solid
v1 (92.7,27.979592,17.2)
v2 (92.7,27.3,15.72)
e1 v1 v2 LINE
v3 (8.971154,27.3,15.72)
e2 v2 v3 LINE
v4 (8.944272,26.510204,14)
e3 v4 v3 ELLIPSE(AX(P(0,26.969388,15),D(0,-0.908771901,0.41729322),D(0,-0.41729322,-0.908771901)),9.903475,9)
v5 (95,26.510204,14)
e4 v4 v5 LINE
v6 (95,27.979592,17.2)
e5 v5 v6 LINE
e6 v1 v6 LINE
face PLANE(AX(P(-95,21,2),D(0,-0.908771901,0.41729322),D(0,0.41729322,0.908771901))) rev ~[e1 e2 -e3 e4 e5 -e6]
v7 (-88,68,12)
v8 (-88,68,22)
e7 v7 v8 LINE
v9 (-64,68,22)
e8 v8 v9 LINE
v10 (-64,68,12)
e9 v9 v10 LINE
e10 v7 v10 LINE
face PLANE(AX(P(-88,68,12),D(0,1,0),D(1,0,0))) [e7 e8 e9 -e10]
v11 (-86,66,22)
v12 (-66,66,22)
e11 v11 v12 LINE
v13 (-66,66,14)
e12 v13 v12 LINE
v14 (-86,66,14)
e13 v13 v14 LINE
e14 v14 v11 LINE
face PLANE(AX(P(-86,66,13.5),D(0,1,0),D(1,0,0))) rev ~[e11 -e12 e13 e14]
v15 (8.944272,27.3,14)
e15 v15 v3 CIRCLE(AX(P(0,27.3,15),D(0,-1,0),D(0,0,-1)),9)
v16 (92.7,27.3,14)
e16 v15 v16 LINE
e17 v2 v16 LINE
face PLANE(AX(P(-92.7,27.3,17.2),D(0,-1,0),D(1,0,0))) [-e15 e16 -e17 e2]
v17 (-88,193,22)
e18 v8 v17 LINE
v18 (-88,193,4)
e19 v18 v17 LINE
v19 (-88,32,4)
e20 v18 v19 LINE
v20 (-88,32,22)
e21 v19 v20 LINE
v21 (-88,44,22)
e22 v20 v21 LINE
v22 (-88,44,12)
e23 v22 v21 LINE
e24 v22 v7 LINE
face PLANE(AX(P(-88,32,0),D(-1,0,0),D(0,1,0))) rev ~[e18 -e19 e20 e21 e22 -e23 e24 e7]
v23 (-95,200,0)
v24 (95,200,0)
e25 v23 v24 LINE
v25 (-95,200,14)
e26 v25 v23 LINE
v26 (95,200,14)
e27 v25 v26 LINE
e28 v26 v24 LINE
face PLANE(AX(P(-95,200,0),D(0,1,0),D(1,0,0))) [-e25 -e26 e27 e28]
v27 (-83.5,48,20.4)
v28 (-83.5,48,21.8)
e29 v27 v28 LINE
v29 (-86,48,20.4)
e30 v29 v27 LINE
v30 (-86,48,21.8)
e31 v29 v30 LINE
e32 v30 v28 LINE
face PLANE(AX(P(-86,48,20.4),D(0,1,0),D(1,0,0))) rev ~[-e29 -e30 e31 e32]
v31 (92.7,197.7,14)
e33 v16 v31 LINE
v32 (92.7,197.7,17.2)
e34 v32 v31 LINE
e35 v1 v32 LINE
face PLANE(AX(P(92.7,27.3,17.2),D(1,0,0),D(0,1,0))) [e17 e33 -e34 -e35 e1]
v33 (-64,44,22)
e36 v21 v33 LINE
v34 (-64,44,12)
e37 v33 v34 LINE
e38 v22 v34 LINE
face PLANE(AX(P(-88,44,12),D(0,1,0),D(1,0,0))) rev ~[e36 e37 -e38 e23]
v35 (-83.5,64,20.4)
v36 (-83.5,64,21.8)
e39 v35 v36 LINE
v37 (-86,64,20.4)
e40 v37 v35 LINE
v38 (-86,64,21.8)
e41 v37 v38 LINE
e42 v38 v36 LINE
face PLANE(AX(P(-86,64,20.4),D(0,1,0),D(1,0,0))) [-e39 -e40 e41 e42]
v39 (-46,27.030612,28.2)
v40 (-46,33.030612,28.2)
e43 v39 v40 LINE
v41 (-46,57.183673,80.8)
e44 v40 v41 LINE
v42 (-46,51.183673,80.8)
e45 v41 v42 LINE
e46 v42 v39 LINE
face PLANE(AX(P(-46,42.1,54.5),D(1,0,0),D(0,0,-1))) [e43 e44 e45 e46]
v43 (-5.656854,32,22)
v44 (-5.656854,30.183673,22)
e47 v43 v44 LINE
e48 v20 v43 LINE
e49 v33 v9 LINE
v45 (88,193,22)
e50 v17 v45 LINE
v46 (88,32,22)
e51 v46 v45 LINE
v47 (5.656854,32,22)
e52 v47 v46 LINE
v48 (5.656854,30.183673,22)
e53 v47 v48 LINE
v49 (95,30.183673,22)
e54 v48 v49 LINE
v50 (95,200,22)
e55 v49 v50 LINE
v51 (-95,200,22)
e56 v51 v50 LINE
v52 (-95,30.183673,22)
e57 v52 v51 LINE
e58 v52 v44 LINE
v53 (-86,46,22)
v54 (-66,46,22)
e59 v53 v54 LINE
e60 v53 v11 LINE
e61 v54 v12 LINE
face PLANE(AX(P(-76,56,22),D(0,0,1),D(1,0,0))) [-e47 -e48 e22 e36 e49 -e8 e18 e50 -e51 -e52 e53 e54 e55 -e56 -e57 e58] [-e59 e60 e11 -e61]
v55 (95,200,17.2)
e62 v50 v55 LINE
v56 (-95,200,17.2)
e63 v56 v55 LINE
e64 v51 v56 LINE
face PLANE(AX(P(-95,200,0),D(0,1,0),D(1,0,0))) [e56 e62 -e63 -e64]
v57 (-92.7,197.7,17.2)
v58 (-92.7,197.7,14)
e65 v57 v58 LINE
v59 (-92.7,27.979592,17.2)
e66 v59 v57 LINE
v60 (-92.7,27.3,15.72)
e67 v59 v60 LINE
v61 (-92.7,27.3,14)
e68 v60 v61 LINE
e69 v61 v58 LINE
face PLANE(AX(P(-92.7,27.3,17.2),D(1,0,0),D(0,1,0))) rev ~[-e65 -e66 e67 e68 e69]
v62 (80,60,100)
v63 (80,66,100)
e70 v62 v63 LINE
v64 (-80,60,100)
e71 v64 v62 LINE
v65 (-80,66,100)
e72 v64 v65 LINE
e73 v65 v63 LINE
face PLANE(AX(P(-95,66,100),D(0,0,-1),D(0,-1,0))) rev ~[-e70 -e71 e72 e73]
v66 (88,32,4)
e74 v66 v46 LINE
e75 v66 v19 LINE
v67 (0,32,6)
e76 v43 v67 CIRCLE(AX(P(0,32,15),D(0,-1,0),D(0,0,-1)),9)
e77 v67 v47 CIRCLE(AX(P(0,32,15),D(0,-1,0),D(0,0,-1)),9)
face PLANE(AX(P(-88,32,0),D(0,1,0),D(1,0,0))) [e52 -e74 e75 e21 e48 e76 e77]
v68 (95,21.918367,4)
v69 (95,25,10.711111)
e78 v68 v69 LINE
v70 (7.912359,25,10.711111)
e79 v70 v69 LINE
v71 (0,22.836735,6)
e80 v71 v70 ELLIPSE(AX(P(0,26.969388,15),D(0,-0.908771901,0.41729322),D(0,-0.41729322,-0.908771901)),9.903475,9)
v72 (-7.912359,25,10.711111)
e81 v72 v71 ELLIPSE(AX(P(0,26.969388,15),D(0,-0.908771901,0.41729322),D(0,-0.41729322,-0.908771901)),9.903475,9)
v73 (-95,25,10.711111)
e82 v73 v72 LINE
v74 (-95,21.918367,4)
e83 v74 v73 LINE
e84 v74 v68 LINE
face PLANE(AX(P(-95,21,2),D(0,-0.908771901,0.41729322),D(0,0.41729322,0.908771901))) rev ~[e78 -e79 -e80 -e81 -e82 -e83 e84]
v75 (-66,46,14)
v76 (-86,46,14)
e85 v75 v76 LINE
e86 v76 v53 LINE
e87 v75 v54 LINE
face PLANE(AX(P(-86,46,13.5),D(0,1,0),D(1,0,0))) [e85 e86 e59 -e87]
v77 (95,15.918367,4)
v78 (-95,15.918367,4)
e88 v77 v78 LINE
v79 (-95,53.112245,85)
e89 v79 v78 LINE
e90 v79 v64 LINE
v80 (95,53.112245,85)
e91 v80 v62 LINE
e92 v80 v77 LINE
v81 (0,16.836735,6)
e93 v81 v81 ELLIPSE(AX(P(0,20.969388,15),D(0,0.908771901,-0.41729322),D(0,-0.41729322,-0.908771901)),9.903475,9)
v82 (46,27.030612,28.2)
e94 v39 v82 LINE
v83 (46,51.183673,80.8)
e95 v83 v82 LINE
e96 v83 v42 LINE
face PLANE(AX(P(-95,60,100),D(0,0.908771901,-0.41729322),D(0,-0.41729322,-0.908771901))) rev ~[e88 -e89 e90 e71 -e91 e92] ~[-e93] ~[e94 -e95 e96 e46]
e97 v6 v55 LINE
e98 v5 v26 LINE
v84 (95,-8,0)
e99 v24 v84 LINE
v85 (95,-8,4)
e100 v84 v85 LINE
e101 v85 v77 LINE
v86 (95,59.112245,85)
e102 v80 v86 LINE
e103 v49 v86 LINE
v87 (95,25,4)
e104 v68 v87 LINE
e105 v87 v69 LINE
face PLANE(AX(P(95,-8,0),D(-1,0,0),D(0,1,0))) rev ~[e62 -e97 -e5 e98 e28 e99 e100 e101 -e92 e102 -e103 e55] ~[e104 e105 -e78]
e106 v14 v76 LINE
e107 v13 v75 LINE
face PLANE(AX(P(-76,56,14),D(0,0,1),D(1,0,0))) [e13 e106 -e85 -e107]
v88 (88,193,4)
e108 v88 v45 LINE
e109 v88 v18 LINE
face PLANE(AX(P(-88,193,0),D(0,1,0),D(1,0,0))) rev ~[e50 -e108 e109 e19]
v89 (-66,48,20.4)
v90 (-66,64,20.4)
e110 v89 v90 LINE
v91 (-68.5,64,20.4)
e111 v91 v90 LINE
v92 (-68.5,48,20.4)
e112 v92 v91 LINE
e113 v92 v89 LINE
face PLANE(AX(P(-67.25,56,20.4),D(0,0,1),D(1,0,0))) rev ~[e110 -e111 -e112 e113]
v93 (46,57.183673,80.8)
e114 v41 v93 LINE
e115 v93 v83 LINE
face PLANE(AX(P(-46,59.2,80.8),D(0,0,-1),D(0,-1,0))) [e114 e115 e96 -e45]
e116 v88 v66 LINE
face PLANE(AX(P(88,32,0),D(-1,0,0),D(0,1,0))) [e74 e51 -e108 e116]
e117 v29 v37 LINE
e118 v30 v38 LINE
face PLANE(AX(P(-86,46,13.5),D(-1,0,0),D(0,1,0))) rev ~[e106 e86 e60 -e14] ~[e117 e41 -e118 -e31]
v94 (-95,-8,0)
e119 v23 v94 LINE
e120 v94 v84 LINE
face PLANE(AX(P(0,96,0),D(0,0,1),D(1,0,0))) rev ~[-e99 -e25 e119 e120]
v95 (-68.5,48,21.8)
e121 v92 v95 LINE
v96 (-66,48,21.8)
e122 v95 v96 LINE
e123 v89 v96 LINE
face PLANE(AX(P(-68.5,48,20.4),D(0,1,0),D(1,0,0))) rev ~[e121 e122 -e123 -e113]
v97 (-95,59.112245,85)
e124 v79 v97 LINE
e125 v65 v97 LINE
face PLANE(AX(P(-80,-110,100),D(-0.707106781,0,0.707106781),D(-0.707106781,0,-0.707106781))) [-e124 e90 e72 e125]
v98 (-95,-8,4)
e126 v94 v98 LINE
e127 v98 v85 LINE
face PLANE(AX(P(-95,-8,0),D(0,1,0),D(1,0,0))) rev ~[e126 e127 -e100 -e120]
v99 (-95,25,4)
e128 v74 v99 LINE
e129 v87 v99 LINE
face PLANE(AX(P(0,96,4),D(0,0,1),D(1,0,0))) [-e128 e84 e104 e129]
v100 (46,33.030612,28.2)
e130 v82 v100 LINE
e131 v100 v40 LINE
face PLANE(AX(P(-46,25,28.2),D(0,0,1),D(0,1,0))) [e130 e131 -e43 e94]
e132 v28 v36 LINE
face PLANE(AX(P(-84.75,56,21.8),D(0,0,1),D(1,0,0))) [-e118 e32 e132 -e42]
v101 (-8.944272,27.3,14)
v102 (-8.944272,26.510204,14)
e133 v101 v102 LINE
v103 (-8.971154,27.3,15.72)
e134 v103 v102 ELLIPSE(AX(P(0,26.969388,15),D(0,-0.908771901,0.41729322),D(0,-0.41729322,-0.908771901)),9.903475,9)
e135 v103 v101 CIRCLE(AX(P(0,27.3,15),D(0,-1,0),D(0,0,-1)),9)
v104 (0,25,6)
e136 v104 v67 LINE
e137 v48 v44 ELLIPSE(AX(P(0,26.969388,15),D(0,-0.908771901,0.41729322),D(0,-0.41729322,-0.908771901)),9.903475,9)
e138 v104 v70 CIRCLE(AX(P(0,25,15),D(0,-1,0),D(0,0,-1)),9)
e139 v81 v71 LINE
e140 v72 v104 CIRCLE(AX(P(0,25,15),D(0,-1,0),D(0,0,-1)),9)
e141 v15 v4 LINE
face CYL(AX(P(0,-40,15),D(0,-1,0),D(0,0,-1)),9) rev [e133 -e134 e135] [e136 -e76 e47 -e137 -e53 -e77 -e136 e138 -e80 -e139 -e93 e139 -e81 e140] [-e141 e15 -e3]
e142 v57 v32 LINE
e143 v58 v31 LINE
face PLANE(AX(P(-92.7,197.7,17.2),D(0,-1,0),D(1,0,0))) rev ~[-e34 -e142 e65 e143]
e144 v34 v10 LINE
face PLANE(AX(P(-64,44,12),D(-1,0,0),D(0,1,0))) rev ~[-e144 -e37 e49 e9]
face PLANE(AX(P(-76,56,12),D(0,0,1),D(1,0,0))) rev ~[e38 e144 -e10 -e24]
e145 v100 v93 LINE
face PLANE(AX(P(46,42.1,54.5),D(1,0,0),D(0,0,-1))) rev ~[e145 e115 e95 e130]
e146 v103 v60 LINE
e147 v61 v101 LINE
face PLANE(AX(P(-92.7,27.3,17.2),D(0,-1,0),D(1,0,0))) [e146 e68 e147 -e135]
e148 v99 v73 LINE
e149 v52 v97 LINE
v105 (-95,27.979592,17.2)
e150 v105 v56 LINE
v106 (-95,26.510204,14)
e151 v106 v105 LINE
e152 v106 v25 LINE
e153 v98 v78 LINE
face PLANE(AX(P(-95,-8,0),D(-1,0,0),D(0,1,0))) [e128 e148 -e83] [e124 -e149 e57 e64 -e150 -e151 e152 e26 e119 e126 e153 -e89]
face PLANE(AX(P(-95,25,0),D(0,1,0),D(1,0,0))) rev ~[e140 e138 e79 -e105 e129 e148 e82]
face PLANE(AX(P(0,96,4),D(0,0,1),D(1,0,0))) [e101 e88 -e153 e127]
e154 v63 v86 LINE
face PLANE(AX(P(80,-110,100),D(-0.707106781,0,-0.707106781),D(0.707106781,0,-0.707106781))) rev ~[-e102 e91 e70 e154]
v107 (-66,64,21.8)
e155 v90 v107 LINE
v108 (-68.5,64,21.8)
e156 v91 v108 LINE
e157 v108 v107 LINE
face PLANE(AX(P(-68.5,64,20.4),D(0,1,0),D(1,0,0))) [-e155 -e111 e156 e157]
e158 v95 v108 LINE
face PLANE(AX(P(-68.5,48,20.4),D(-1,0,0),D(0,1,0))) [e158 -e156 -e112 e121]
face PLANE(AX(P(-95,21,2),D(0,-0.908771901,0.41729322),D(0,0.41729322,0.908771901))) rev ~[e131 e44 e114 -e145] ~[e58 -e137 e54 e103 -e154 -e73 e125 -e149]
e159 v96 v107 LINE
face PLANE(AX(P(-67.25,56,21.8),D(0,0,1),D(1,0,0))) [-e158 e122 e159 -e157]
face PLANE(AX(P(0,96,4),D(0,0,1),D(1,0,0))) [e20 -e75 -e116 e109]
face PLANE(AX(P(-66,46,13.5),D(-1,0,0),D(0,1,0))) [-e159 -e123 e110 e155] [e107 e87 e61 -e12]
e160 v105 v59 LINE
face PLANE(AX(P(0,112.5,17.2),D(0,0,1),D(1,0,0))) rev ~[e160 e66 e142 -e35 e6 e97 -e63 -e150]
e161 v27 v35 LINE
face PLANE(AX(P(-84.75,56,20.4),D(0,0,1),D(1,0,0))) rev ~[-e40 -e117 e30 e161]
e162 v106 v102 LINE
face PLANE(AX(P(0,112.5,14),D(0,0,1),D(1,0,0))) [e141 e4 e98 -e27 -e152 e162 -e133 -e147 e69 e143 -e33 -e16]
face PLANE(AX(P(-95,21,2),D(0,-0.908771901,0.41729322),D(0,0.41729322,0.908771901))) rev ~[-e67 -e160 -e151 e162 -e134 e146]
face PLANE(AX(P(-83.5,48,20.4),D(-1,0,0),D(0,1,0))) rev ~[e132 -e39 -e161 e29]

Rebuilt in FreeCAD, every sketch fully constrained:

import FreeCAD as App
import Part
import Sketcher

V = App.Vector


def add_polygon(sketch, points):
    """Adds a closed chain of lines whose ends are joined by coincident constraints."""
    first, n = sketch.GeometryCount, len(points)
    for a, b in zip(points, points[1:] + points[:1]):
        sketch.addGeometry(Part.LineSegment(App.Vector(*a, 0), App.Vector(*b, 0)), False)
    for i in range(n):
        sketch.addConstraint(Sketcher.Constraint("Coincident", first + i, 2, first + (i + 1) % n, 1))

doc = App.newDocument("Part")
body = doc.addObject("PartDesign::Body", "Body")

sketch1 = body.newObject("Sketcher::SketchObject", "Sketch")
sketch1.AttachmentSupport = (doc.getObject("XY_Plane"), [""])
sketch1.MapMode = "FlatFace"
add_polygon(sketch1, [(-95, 200), (-95, -8), (95, -8), (95, 200)])
sketch1.addConstraint(Sketcher.Constraint("Vertical", 0))
sketch1.addConstraint(Sketcher.Constraint("Horizontal", 1))
sketch1.addConstraint(Sketcher.Constraint("Vertical", 2))
sketch1.addConstraint(Sketcher.Constraint("Horizontal", 3))
sketch1.addConstraint(Sketcher.Constraint("DistanceX", 1, 1, 1, 2, 190.0))
sketch1.addConstraint(Sketcher.Constraint("DistanceY", 0, 2, 0, 1, 208.0))
sketch1.addConstraint(Sketcher.Constraint("DistanceX", 0, 2, -1, 1, 95.0))
sketch1.addConstraint(Sketcher.Constraint("DistanceY", 0, 2, -1, 1, 8.0))
pad1 = body.newObject("PartDesign::Pad", "Pad")
pad1.Profile = sketch1
pad1.Length = 4

sketch2 = body.newObject("Sketcher::SketchObject", "Sketch001")
sketch2.AttachmentSupport = (doc.getObject("XY_Plane"), [""])
sketch2.MapMode = "FlatFace"
add_polygon(sketch2, [(-95, 200), (-95, 25), (95, 25), (95, 200)])
add_polygon(sketch2, [(88, 32), (-88, 32), (-88, 193), (88, 193)])
sketch2.addConstraint(Sketcher.Constraint("Vertical", 0))
sketch2.addConstraint(Sketcher.Constraint("Horizontal", 1))
sketch2.addConstraint(Sketcher.Constraint("Vertical", 2))
sketch2.addConstraint(Sketcher.Constraint("Horizontal", 3))
sketch2.addConstraint(Sketcher.Constraint("Horizontal", 4))
sketch2.addConstraint(Sketcher.Constraint("Vertical", 5))
sketch2.addConstraint(Sketcher.Constraint("Horizontal", 6))
sketch2.addConstraint(Sketcher.Constraint("Vertical", 7))
sketch2.addConstraint(Sketcher.Constraint("DistanceX", 1, 1, 1, 2, 190.0))
sketch2.addConstraint(Sketcher.Constraint("DistanceX", 4, 2, 4, 1, 176.0))
sketch2.addConstraint(Sketcher.Constraint("DistanceY", 0, 2, 0, 1, 175.0))
sketch2.addConstraint(Sketcher.Constraint("DistanceY", 5, 1, 5, 2, 161.0))
sketch2.addConstraint(Sketcher.Constraint("DistanceX", 0, 2, -1, 1, 95.0))
sketch2.addConstraint(Sketcher.Constraint("DistanceY", -1, 1, 0, 2, 25.0))
sketch2.addConstraint(Sketcher.Constraint("DistanceX", 4, 2, -1, 1, 88.0))
sketch2.addConstraint(Sketcher.Constraint("DistanceY", -1, 1, 4, 2, 32.0))
pad2 = body.newObject("PartDesign::Pad", "Pad001")
pad2.Profile = sketch2
pad2.Length = 22

sketch3 = body.newObject("Sketcher::SketchObject", "Sketch002")
sketch3.AttachmentSupport = (doc.getObject("XY_Plane"), [""])
sketch3.MapMode = "FlatFace"
sketch3.AttachmentOffset = App.Placement(V(0, 0, 17.2), App.Rotation())
add_polygon(sketch3, [(-96, 201), (-96, 24), (96, 24), (96, 201)])
add_polygon(sketch3, [(93, 27), (-93, 27), (-93, 198), (93, 198)])
sketch3.addConstraint(Sketcher.Constraint("Vertical", 0))
sketch3.addConstraint(Sketcher.Constraint("Horizontal", 1))
sketch3.addConstraint(Sketcher.Constraint("Vertical", 2))
sketch3.addConstraint(Sketcher.Constraint("Horizontal", 3))
sketch3.addConstraint(Sketcher.Constraint("Horizontal", 4))
sketch3.addConstraint(Sketcher.Constraint("Vertical", 5))
sketch3.addConstraint(Sketcher.Constraint("Horizontal", 6))
sketch3.addConstraint(Sketcher.Constraint("Vertical", 7))
sketch3.addConstraint(Sketcher.Constraint("DistanceX", 1, 1, 1, 2, 192.0))
sketch3.addConstraint(Sketcher.Constraint("DistanceY", 0, 2, 0, 1, 177.0))
sketch3.addConstraint(Sketcher.Constraint("DistanceX", 4, 2, 4, 1, 185.4))
sketch3.addConstraint(Sketcher.Constraint("DistanceY", 5, 1, 5, 2, 170.4))
sketch3.addConstraint(Sketcher.Constraint("DistanceX", 0, 2, -1, 1, 96.0))
sketch3.addConstraint(Sketcher.Constraint("DistanceY", -1, 1, 0, 2, 24.0))
sketch3.addConstraint(Sketcher.Constraint("DistanceX", 4, 2, -1, 1, 92.7))
sketch3.addConstraint(Sketcher.Constraint("DistanceY", -1, 1, 4, 2, 27.3))
pocket1 = body.newObject("PartDesign::Pocket", "Pocket")
pocket1.Profile = sketch3
pocket1.Length = 3.2

sketch4 = body.newObject("Sketcher::SketchObject", "Sketch003")
sketch4.AttachmentSupport = (doc.getObject("XY_Plane"), [""])
sketch4.MapMode = "FlatFace"
sketch4.AttachmentOffset = App.Placement(V(0, 0, 12), App.Rotation())
add_polygon(sketch4, [(-88, 68), (-88, 44), (-64, 44), (-64, 68)])
sketch4.addConstraint(Sketcher.Constraint("Vertical", 0))
sketch4.addConstraint(Sketcher.Constraint("Horizontal", 1))
sketch4.addConstraint(Sketcher.Constraint("Vertical", 2))
sketch4.addConstraint(Sketcher.Constraint("Horizontal", 3))
sketch4.addConstraint(Sketcher.Constraint("Equal", 3, 0))
sketch4.addConstraint(Sketcher.Constraint("DistanceX", 1, 1, 1, 2, 24.0))
sketch4.addConstraint(Sketcher.Constraint("DistanceX", 0, 2, -1, 1, 88.0))
sketch4.addConstraint(Sketcher.Constraint("DistanceY", -1, 1, 0, 2, 44.0))
pad3 = body.newObject("PartDesign::Pad", "Pad002")
pad3.Profile = sketch4
pad3.Length = 2

sketch5 = body.newObject("Sketcher::SketchObject", "Sketch004")
sketch5.AttachmentSupport = (doc.getObject("XY_Plane"), [""])
sketch5.MapMode = "FlatFace"
sketch5.AttachmentOffset = App.Placement(V(0, 0, 13.5), App.Rotation())
add_polygon(sketch5, [(-88, 68), (-88, 44), (-64, 44), (-64, 68)])
add_polygon(sketch5, [(-66, 46), (-86, 46), (-86, 66), (-66, 66)])
sketch5.addConstraint(Sketcher.Constraint("Vertical", 0))
sketch5.addConstraint(Sketcher.Constraint("Horizontal", 1))
sketch5.addConstraint(Sketcher.Constraint("Vertical", 2))
sketch5.addConstraint(Sketcher.Constraint("Horizontal", 3))
sketch5.addConstraint(Sketcher.Constraint("Horizontal", 4))
sketch5.addConstraint(Sketcher.Constraint("Vertical", 5))
sketch5.addConstraint(Sketcher.Constraint("Horizontal", 6))
sketch5.addConstraint(Sketcher.Constraint("Vertical", 7))
sketch5.addConstraint(Sketcher.Constraint("Equal", 3, 0))
sketch5.addConstraint(Sketcher.Constraint("Equal", 6, 5))
sketch5.addConstraint(Sketcher.Constraint("DistanceX", 1, 1, 1, 2, 24.0))
sketch5.addConstraint(Sketcher.Constraint("DistanceX", 4, 2, 4, 1, 20.0))
sketch5.addConstraint(Sketcher.Constraint("DistanceX", 0, 2, -1, 1, 88.0))
sketch5.addConstraint(Sketcher.Constraint("DistanceY", -1, 1, 0, 2, 44.0))
sketch5.addConstraint(Sketcher.Constraint("DistanceX", 4, 2, -1, 1, 86.0))
sketch5.addConstraint(Sketcher.Constraint("DistanceY", -1, 1, 4, 2, 46.0))
pad4 = body.newObject("PartDesign::Pad", "Pad003")
pad4.Profile = sketch5
pad4.Length = 8.5

sketch6 = body.newObject("Sketcher::SketchObject", "Sketch005")
sketch6.AttachmentSupport = (doc.getObject("XY_Plane"), [""])
sketch6.MapMode = "FlatFace"
sketch6.AttachmentOffset = App.Placement(V(0, 0, 20.4), App.Rotation())
add_polygon(sketch6, [(-86, 64), (-86, 48), (-83.5, 48), (-83.5, 64)])
sketch6.addConstraint(Sketcher.Constraint("Vertical", 0))
sketch6.addConstraint(Sketcher.Constraint("Horizontal", 1))
sketch6.addConstraint(Sketcher.Constraint("Vertical", 2))
sketch6.addConstraint(Sketcher.Constraint("Horizontal", 3))
sketch6.addConstraint(Sketcher.Constraint("DistanceY", 0, 2, 0, 1, 16.0))
sketch6.addConstraint(Sketcher.Constraint("DistanceX", 1, 1, 1, 2, 2.5))
sketch6.addConstraint(Sketcher.Constraint("DistanceX", 0, 2, -1, 1, 86.0))
sketch6.addConstraint(Sketcher.Constraint("DistanceY", -1, 1, 0, 2, 48.0))
pad5 = body.newObject("PartDesign::Pad", "Pad004")
pad5.Profile = sketch6
pad5.Length = 1.4

sketch7 = body.newObject("Sketcher::SketchObject", "Sketch006")
sketch7.AttachmentSupport = (doc.getObject("XY_Plane"), [""])
sketch7.MapMode = "FlatFace"
sketch7.AttachmentOffset = App.Placement(V(0, 0, 20.4), App.Rotation())
add_polygon(sketch7, [(-68.5, 64), (-68.5, 48), (-66, 48), (-66, 64)])
sketch7.addConstraint(Sketcher.Constraint("Vertical", 0))
sketch7.addConstraint(Sketcher.Constraint("Horizontal", 1))
sketch7.addConstraint(Sketcher.Constraint("Vertical", 2))
sketch7.addConstraint(Sketcher.Constraint("Horizontal", 3))
sketch7.addConstraint(Sketcher.Constraint("DistanceY", 0, 2, 0, 1, 16.0))
sketch7.addConstraint(Sketcher.Constraint("DistanceX", 1, 1, 1, 2, 2.5))
sketch7.addConstraint(Sketcher.Constraint("DistanceY", -1, 1, 0, 2, 48.0))
sketch7.addConstraint(Sketcher.Constraint("DistanceX", 1, 2, -1, 1, 66.0))
pad6 = body.newObject("PartDesign::Pad", "Pad005")
pad6.Profile = sketch7
pad6.Length = 1.4

sketch8 = body.newObject("Sketcher::SketchObject", "Sketch007")
sketch8.AttachmentSupport = (doc.getObject("YZ_Plane"), [""])
sketch8.MapMode = "FlatFace"
add_polygon(sketch8, [(15, 2), (21, 2), (66, 100), (60, 100)])
sketch8.addConstraint(Sketcher.Constraint("Horizontal", 0))
sketch8.addConstraint(Sketcher.Constraint("Horizontal", 2))
sketch8.addConstraint(Sketcher.Constraint("Parallel", 1, 3))
sketch8.addConstraint(Sketcher.Constraint("DistanceX", 0, 1, 0, 2, 6.0))
sketch8.addConstraint(Sketcher.Constraint("DistanceX", -1, 1, 0, 2, 21.0))
sketch8.addConstraint(Sketcher.Constraint("DistanceY", -1, 1, 0, 2, 2.0))
sketch8.addConstraint(Sketcher.Constraint("DistanceX", -1, 1, 1, 2, 66.0))
sketch8.addConstraint(Sketcher.Constraint("DistanceY", -1, 1, 1, 2, 100.0))
pad7 = body.newObject("PartDesign::Pad", "Pad006")
pad7.Profile = sketch8
pad7.Type = "TwoLengths"
pad7.Length = 95
pad7.Length2 = 95

sketch9 = body.newObject("Sketcher::SketchObject", "Sketch008")
sketch9.AttachmentSupport = (doc.getObject("YZ_Plane"), [""])
sketch9.MapMode = "FlatFace"
add_polygon(sketch9, [(25, 28), (35, 28), (59, 81), (49, 81)])
sketch9.addConstraint(Sketcher.Constraint("Horizontal", 0))
sketch9.addConstraint(Sketcher.Constraint("Horizontal", 2))
sketch9.addConstraint(Sketcher.Constraint("Parallel", 1, 3))
sketch9.addConstraint(Sketcher.Constraint("DistanceX", 0, 1, 0, 2, 10.0))
sketch9.addConstraint(Sketcher.Constraint("DistanceX", -1, 1, 0, 2, 35.0))
sketch9.addConstraint(Sketcher.Constraint("DistanceY", -1, 1, 0, 2, 28.2))
sketch9.addConstraint(Sketcher.Constraint("DistanceX", -1, 1, 1, 2, 59.2))
sketch9.addConstraint(Sketcher.Constraint("DistanceY", -1, 1, 1, 2, 80.8))
pocket2 = body.newObject("PartDesign::Pocket", "Pocket001")
pocket2.Profile = sketch9
pocket2.Type = "TwoLengths"
pocket2.Length = 46
pocket2.Length2 = 46
pocket2.Reversed = True

sketch10 = body.newObject("Sketcher::SketchObject", "Sketch009")
sketch10.AttachmentSupport = (doc.getObject("XZ_Plane"), [""])
sketch10.MapMode = "FlatFace"
sketch10.addGeometry(Part.Circle(V(0, 15, 0), V(0, 0, 1), 9), False)
sketch10.addConstraint(Sketcher.Constraint("PointOnObject", 0, 3, -2))
sketch10.addConstraint(Sketcher.Constraint("Diameter", 0, 18.0))
sketch10.addConstraint(Sketcher.Constraint("DistanceY", -1, 1, 0, 3, 15.0))
pocket3 = body.newObject("PartDesign::Pocket", "Pocket002")
pocket3.Profile = sketch10
pocket3.Type = "TwoLengths"
pocket3.Length = 40
pocket3.Length2 = 40

sketch11 = body.newObject("Sketcher::SketchObject", "Sketch010")
sketch11.AttachmentSupport = (doc.getObject("XZ_Plane"), [""])
sketch11.MapMode = "FlatFace"
add_polygon(sketch11, [(-95, 100), (-80, 100), (-95, 85)])
sketch11.addConstraint(Sketcher.Constraint("Horizontal", 0))
sketch11.addConstraint(Sketcher.Constraint("Vertical", 2))
sketch11.addConstraint(Sketcher.Constraint("Equal", 0, 2))
sketch11.addConstraint(Sketcher.Constraint("DistanceX", 0, 1, 0, 2, 15.0))
sketch11.addConstraint(Sketcher.Constraint("DistanceX", 0, 2, -1, 1, 80.0))
sketch11.addConstraint(Sketcher.Constraint("DistanceY", -1, 1, 0, 2, 100.0))
pocket4 = body.newObject("PartDesign::Pocket", "Pocket003")
pocket4.Profile = sketch11
pocket4.Type = "ThroughAll"
pocket4.Midplane = True

sketch12 = body.newObject("Sketcher::SketchObject", "Sketch011")
sketch12.AttachmentSupport = (doc.getObject("XZ_Plane"), [""])
sketch12.MapMode = "FlatFace"
add_polygon(sketch12, [(80, 100), (95, 100), (95, 85)])
sketch12.addConstraint(Sketcher.Constraint("Horizontal", 0))
sketch12.addConstraint(Sketcher.Constraint("Vertical", 1))
sketch12.addConstraint(Sketcher.Constraint("Equal", 0, 1))
sketch12.addConstraint(Sketcher.Constraint("DistanceX", 0, 1, 0, 2, 15.0))
sketch12.addConstraint(Sketcher.Constraint("DistanceX", -1, 1, 0, 2, 95.0))
sketch12.addConstraint(Sketcher.Constraint("DistanceY", -1, 1, 0, 2, 100.0))
pocket5 = body.newObject("PartDesign::Pocket", "Pocket004")
pocket5.Profile = sketch12
pocket5.Type = "ThroughAll"
pocket5.Midplane = True

doc.recompute()
